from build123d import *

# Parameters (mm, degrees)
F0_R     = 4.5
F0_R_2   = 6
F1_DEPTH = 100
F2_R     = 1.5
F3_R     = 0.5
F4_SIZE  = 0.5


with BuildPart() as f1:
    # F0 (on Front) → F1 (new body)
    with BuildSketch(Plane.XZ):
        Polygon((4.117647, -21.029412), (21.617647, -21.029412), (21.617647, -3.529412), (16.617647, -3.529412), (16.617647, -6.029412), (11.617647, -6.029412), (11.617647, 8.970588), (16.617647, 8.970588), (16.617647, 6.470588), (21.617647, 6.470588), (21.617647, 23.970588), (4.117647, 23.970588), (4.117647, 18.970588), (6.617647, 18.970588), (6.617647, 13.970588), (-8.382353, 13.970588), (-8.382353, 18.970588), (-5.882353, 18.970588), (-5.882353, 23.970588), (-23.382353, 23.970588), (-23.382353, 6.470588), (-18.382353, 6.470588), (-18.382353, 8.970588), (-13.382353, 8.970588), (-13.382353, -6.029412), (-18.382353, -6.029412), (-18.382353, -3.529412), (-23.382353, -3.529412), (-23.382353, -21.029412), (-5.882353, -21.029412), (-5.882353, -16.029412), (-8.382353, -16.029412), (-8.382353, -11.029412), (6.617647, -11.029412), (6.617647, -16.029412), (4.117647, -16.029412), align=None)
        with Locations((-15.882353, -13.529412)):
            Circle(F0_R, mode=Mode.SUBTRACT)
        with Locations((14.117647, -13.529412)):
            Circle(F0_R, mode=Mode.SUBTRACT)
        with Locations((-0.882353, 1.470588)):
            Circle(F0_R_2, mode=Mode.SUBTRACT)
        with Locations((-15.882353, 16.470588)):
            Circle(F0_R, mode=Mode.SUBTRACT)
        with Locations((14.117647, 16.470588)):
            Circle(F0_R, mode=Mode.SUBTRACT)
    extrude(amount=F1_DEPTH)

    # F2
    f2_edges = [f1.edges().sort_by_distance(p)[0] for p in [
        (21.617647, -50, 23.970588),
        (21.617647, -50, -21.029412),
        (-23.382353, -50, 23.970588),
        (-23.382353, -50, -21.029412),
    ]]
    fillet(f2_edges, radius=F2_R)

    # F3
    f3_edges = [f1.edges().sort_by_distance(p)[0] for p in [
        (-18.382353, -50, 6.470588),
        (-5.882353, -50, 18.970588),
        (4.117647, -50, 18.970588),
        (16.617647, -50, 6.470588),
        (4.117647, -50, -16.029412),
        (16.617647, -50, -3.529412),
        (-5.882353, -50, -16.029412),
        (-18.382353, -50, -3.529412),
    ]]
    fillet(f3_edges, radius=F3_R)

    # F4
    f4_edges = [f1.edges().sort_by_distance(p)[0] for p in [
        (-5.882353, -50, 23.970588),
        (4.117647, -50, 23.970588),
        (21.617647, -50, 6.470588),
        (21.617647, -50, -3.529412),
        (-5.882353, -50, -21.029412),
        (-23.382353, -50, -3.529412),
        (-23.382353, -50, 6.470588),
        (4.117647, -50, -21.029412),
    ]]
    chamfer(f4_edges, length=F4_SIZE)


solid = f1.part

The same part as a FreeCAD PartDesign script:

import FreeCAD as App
import Part
import Sketcher
from FreeCAD import Vector


def edges_at(feature, points):
    """Names of the edges that pass closest to the given points."""
    edges = feature.Shape.Edges
    near = lambda p: min(range(len(edges)), key=lambda i: edges[i].distToShape(Part.Vertex(*p))[0])
    return sorted({f"Edge{near(p) + 1}" for p in points})

doc = App.newDocument("Part")
body = doc.addObject("PartDesign::Body", "Body")

# Sketch on XZ plane
sketch1 = body.newObject("Sketcher::SketchObject", "Sketch")
sketch1.AttachmentSupport = (doc.getObject("XZ_Plane"), [""])
sketch1.MapMode = "FlatFace"
sketch1.addGeometry(Part.LineSegment(Vector(4.1, -21, 0), Vector(21.6, -21, 0)), False)
sketch1.addGeometry(Part.LineSegment(Vector(21.6, -21, 0), Vector(21.6, -3.5, 0)), False)
sketch1.addGeometry(Part.LineSegment(Vector(21.6, -3.5, 0), Vector(16.6, -3.5, 0)), False)
sketch1.addGeometry(Part.LineSegment(Vector(16.6, -3.5, 0), Vector(16.6, -6, 0)), False)
sketch1.addGeometry(Part.LineSegment(Vector(16.6, -6, 0), Vector(11.6, -6, 0)), False)
sketch1.addGeometry(Part.LineSegment(Vector(11.6, -6, 0), Vector(11.6, 9, 0)), False)
sketch1.addGeometry(Part.LineSegment(Vector(11.6, 9, 0), Vector(16.6, 9, 0)), False)
sketch1.addGeometry(Part.LineSegment(Vector(16.6, 9, 0), Vector(16.6, 6.5, 0)), False)
sketch1.addGeometry(Part.LineSegment(Vector(16.6, 6.5, 0), Vector(21.6, 6.5, 0)), False)
sketch1.addGeometry(Part.LineSegment(Vector(21.6, 6.5, 0), Vector(21.6, 24, 0)), False)
sketch1.addGeometry(Part.LineSegment(Vector(21.6, 24, 0), Vector(4.1, 24, 0)), False)
sketch1.addGeometry(Part.LineSegment(Vector(4.1, 24, 0), Vector(4.1, 19, 0)), False)
sketch1.addGeometry(Part.LineSegment(Vector(4.1, 19, 0), Vector(6.6, 19, 0)), False)
sketch1.addGeometry(Part.LineSegment(Vector(6.6, 19, 0), Vector(6.6, 14, 0)), False)
sketch1.addGeometry(Part.LineSegment(Vector(6.6, 14, 0), Vector(-8.4, 14, 0)), False)
sketch1.addGeometry(Part.LineSegment(Vector(-8.4, 14, 0), Vector(-8.4, 19, 0)), False)
sketch1.addGeometry(Part.LineSegment(Vector(-8.4, 19, 0), Vector(-5.9, 19, 0)), False)
sketch1.addGeometry(Part.LineSegment(Vector(-5.9, 19, 0), Vector(-5.9, 24, 0)), False)
sketch1.addGeometry(Part.LineSegment(Vector(-5.9, 24, 0), Vector(-23.4, 24, 0)), False)
sketch1.addGeometry(Part.LineSegment(Vector(-23.4, 24, 0), Vector(-23.4, 6.5, 0)), False)
sketch1.addGeometry(Part.LineSegment(Vector(-23.4, 6.5, 0), Vector(-18.4, 6.5, 0)), False)
sketch1.addGeometry(Part.LineSegment(Vector(-18.4, 6.5, 0), Vector(-18.4, 9, 0)), False)
sketch1.addGeometry(Part.LineSegment(Vector(-18.4, 9, 0), Vector(-13.4, 9, 0)), False)
sketch1.addGeometry(Part.LineSegment(Vector(-13.4, 9, 0), Vector(-13.4, -6, 0)), False)
sketch1.addGeometry(Part.LineSegment(Vector(-13.4, -6, 0), Vector(-18.4, -6, 0)), False)
sketch1.addGeometry(Part.LineSegment(Vector(-18.4, -6, 0), Vector(-18.4, -3.5, 0)), False)
sketch1.addGeometry(Part.LineSegment(Vector(-18.4, -3.5, 0), Vector(-23.4, -3.5, 0)), False)
sketch1.addGeometry(Part.LineSegment(Vector(-23.4, -3.5, 0), Vector(-23.4, -21, 0)), False)
sketch1.addGeometry(Part.LineSegment(Vector(-23.4, -21, 0), Vector(-5.9, -21, 0)), False)
sketch1.addGeometry(Part.LineSegment(Vector(-5.9, -21, 0), Vector(-5.9, -16, 0)), False)
sketch1.addGeometry(Part.LineSegment(Vector(-5.9, -16, 0), Vector(-8.4, -16, 0)), False)
sketch1.addGeometry(Part.LineSegment(Vector(-8.4, -16, 0), Vector(-8.4, -11, 0)), False)
sketch1.addGeometry(Part.LineSegment(Vector(-8.4, -11, 0), Vector(6.6, -11, 0)), False)
sketch1.addGeometry(Part.LineSegment(Vector(6.6, -11, 0), Vector(6.6, -16, 0)), False)
sketch1.addGeometry(Part.LineSegment(Vector(6.6, -16, 0), Vector(4.1, -16, 0)), False)
sketch1.addGeometry(Part.LineSegment(Vector(4.1, -16, 0), Vector(4.1, -21, 0)), False)
sketch1.addGeometry(Part.Circle(Vector(-15.9, -13.5, 0), Vector(0, 0, 1), 4.5), False)
sketch1.addGeometry(Part.Circle(Vector(14.1, -13.5, 0), Vector(0, 0, 1), 4.5), False)
sketch1.addGeometry(Part.Circle(Vector(-15.9, 16.5, 0), Vector(0, 0, 1), 4.5), False)
sketch1.addGeometry(Part.Circle(Vector(-0.9, 1.5, 0), Vector(0, 0, 1), 6), False)
sketch1.addGeometry(Part.Circle(Vector(14.1, 16.5, 0), Vector(0, 0, 1), 4.5), False)
sketch1.addConstraint(Sketcher.Constraint("Coincident", 0, 2, 1, 1))
sketch1.addConstraint(Sketcher.Constraint("Coincident", 1, 2, 2, 1))
sketch1.addConstraint(Sketcher.Constraint("Coincident", 2, 2, 3, 1))
sketch1.addConstraint(Sketcher.Constraint("Coincident", 3, 2, 4, 1))
sketch1.addConstraint(Sketcher.Constraint("Coincident", 4, 2, 5, 1))
sketch1.addConstraint(Sketcher.Constraint("Coincident", 5, 2, 6, 1))
sketch1.addConstraint(Sketcher.Constraint("Coincident", 6, 2, 7, 1))
sketch1.addConstraint(Sketcher.Constraint("Coincident", 7, 2, 8, 1))
sketch1.addConstraint(Sketcher.Constraint("Coincident", 8, 2, 9, 1))
sketch1.addConstraint(Sketcher.Constraint("Coincident", 9, 2, 10, 1))
sketch1.addConstraint(Sketcher.Constraint("Coincident", 10, 2, 11, 1))
sketch1.addConstraint(Sketcher.Constraint("Coincident", 11, 2, 12, 1))
sketch1.addConstraint(Sketcher.Constraint("Coincident", 12, 2, 13, 1))
sketch1.addConstraint(Sketcher.Constraint("Coincident", 13, 2, 14, 1))
sketch1.addConstraint(Sketcher.Constraint("Coincident", 14, 2, 15, 1))
sketch1.addConstraint(Sketcher.Constraint("Coincident", 15, 2, 16, 1))
sketch1.addConstraint(Sketcher.Constraint("Coincident", 16, 2, 17, 1))
sketch1.addConstraint(Sketcher.Constraint("Coincident", 17, 2, 18, 1))
sketch1.addConstraint(Sketcher.Constraint("Coincident", 18, 2, 19, 1))
sketch1.addConstraint(Sketcher.Constraint("Coincident", 19, 2, 20, 1))
sketch1.addConstraint(Sketcher.Constraint("Coincident", 20, 2, 21, 1))
sketch1.addConstraint(Sketcher.Constraint("Coincident", 21, 2, 22, 1))
sketch1.addConstraint(Sketcher.Constraint("Coincident", 22, 2, 23, 1))
sketch1.addConstraint(Sketcher.Constraint("Coincident", 23, 2, 24, 1))
sketch1.addConstraint(Sketcher.Constraint("Coincident", 24, 2, 25, 1))
sketch1.addConstraint(Sketcher.Constraint("Coincident", 25, 2, 26, 1))
sketch1.addConstraint(Sketcher.Constraint("Coincident", 26, 2, 27, 1))
sketch1.addConstraint(Sketcher.Constraint("Coincident", 27, 2, 28, 1))
sketch1.addConstraint(Sketcher.Constraint("Coincident", 28, 2, 29, 1))
sketch1.addConstraint(Sketcher.Constraint("Coincident", 29, 2, 30, 1))
sketch1.addConstraint(Sketcher.Constraint("Coincident", 30, 2, 31, 1))
sketch1.addConstraint(Sketcher.Constraint("Coincident", 31, 2, 32, 1))
sketch1.addConstraint(Sketcher.Constraint("Coincident", 32, 2, 33, 1))
sketch1.addConstraint(Sketcher.Constraint("Coincident", 33, 2, 34, 1))
sketch1.addConstraint(Sketcher.Constraint("Coincident", 34, 2, 35, 1))
sketch1.addConstraint(Sketcher.Constraint("Coincident", 35, 2, 0, 1))
sketch1.addConstraint(Sketcher.Constraint("Horizontal", 0))
sketch1.addConstraint(Sketcher.Constraint("Vertical", 1))
sketch1.addConstraint(Sketcher.Constraint("Horizontal", 2))
sketch1.addConstraint(Sketcher.Constraint("Vertical", 3))
sketch1.addConstraint(Sketcher.Constraint("Horizontal", 4))
sketch1.addConstraint(Sketcher.Constraint("Vertical", 5))
sketch1.addConstraint(Sketcher.Constraint("Horizontal", 6))
sketch1.addConstraint(Sketcher.Constraint("Vertical", 7))
sketch1.addConstraint(Sketcher.Constraint("Horizontal", 8))
sketch1.addConstraint(Sketcher.Constraint("Vertical", 9))
sketch1.addConstraint(Sketcher.Constraint("Horizontal", 10))
sketch1.addConstraint(Sketcher.Constraint("Vertical", 11))
sketch1.addConstraint(Sketcher.Constraint("Horizontal", 12))
sketch1.addConstraint(Sketcher.Constraint("Vertical", 13))
sketch1.addConstraint(Sketcher.Constraint("Horizontal", 14))
sketch1.addConstraint(Sketcher.Constraint("Vertical", 15))
sketch1.addConstraint(Sketcher.Constraint("Horizontal", 16))
sketch1.addConstraint(Sketcher.Constraint("Vertical", 17))
sketch1.addConstraint(Sketcher.Constraint("Horizontal", 18))
sketch1.addConstraint(Sketcher.Constraint("Vertical", 19))
sketch1.addConstraint(Sketcher.Constraint("Horizontal", 20))
sketch1.addConstraint(Sketcher.Constraint("Vertical", 21))
sketch1.addConstraint(Sketcher.Constraint("Horizontal", 22))
sketch1.addConstraint(Sketcher.Constraint("Vertical", 23))
sketch1.addConstraint(Sketcher.Constraint("Horizontal", 24))
sketch1.addConstraint(Sketcher.Constraint("Vertical", 25))
sketch1.addConstraint(Sketcher.Constraint("Horizontal", 26))
sketch1.addConstraint(Sketcher.Constraint("Vertical", 27))
sketch1.addConstraint(Sketcher.Constraint("Horizontal", 28))
sketch1.addConstraint(Sketcher.Constraint("Vertical", 29))
sketch1.addConstraint(Sketcher.Constraint("Horizontal", 30))
sketch1.addConstraint(Sketcher.Constraint("Vertical", 31))
sketch1.addConstraint(Sketcher.Constraint("Horizontal", 32))
sketch1.addConstraint(Sketcher.Constraint("Vertical", 33))
sketch1.addConstraint(Sketcher.Constraint("Horizontal", 34))
sketch1.addConstraint(Sketcher.Constraint("Vertical", 35))
sketch1.addConstraint(Sketcher.Constraint("Equal", 36, 37))
sketch1.addConstraint(Sketcher.Constraint("Equal", 37, 38))
sketch1.addConstraint(Sketcher.Constraint("Equal", 38, 40))
sketch1.addConstraint(Sketcher.Constraint("Horizontal", 36, 3, 37, 3))
sketch1.addConstraint(Sketcher.Constraint("Horizontal", 38, 3, 40, 3))
sketch1.addConstraint(Sketcher.Constraint("Horizontal", 12, 2, 15, 2))
sketch1.addConstraint(Sketcher.Constraint("Horizontal", 10, 2, 17, 2))
sketch1.addConstraint(Sketcher.Constraint("Horizontal", 8, 2, 19, 2))
sketch1.addConstraint(Sketcher.Constraint("Horizontal", 6, 2, 21, 2))
sketch1.addConstraint(Sketcher.Constraint("Horizontal", 4, 2, 23, 2))
sketch1.addConstraint(Sketcher.Constraint("Horizontal", 2, 2, 25, 2))
sketch1.addConstraint(Sketcher.Constraint("Horizontal", 0, 2, 27, 2))
sketch1.addConstraint(Sketcher.Constraint("Horizontal", 30, 2, 33, 2))
sketch1.addConstraint(Sketcher.Constraint("Vertical", 36, 3, 38, 3))
sketch1.addConstraint(Sketcher.Constraint("Vertical", 37, 3, 40, 3))
sketch1.addConstraint(Sketcher.Constraint("Vertical", 3, 2, 6, 2))
sketch1.addConstraint(Sketcher.Constraint("Vertical", 1, 2, 8, 2))
sketch1.addConstraint(Sketcher.Constraint("Vertical", 21, 2, 24, 2))
sketch1.addConstraint(Sketcher.Constraint("Vertical", 19, 2, 26, 2))
sketch1.addConstraint(Sketcher.Constraint("Vertical", 17, 2, 28, 2))
sketch1.addConstraint(Sketcher.Constraint("Vertical", 15, 2, 30, 2))
sketch1.addConstraint(Sketcher.Constraint("Vertical", 13, 2, 32, 2))
sketch1.addConstraint(Sketcher.Constraint("Vertical", 11, 2, 34, 2))
sketch1.addConstraint(Sketcher.Constraint("Equal", 2, 4))
sketch1.addConstraint(Sketcher.Constraint("Equal", 12, 16))
sketch1.addConstraint(Sketcher.Constraint("Equal", 10, 18))
sketch1.addConstraint(Sketcher.Constraint("Equal", 8, 20))
sketch1.addConstraint(Sketcher.Constraint("Equal", 20, 22))
sketch1.addConstraint(Sketcher.Constraint("Equal", 28, 1))
sketch1.addConstraint(Sketcher.Constraint("Equal", 34, 3))
sketch1.addConstraint(Sketcher.Constraint("Equal", 32, 5))
sketch1.addConstraint(Sketcher.Constraint("Equal", 3, 7))
sketch1.addConstraint(Sketcher.Constraint("Equal", 1, 9))
sketch1.addConstraint(Sketcher.Constraint("Equal", 26, 11))
sketch1.addConstraint(Sketcher.Constraint("Equal", 11, 13))
sketch1.addConstraint(Sketcher.Constraint("Equal", 17, 29))
sketch1.addConstraint(Sketcher.Constraint("Equal", 29, 31))
sketch1.addConstraint(Sketcher.Constraint("Diameter", 36, 9.0))
sketch1.addConstraint(Sketcher.Constraint("Diameter", 39, 12.0))
sketch1.addConstraint(Sketcher.Constraint("DistanceX", 2, 2, 2, 1, 5.0))
sketch1.addConstraint(Sketcher.Constraint("DistanceX", 14, 2, 14, 1, 15.0))
sketch1.addConstraint(Sketcher.Constraint("DistanceX", 0, 1, 0, 2, 17.5))
sketch1.addConstraint(Sketcher.Constraint("DistanceX", 12, 1, 12, 2, 2.5))
sketch1.addConstraint(Sketcher.Constraint("DistanceX", 36, 3, 37, 3, 30.0))
sketch1.addConstraint(Sketcher.Constraint("DistanceY", 36, 3, 38, 3, 30.0))
sketch1.addConstraint(Sketcher.Constraint("DistanceX", 36, 3, 39, 3, 15.0))
sketch1.addConstraint(Sketcher.Constraint("DistanceY", 36, 3, 39, 3, 15.0))
sketch1.addConstraint(Sketcher.Constraint("DistanceY", 37, 3, 1, 2, 10.0))
sketch1.addConstraint(Sketcher.Constraint("DistanceX", 10, 2, 40, 3, 10.0))
sketch1.addConstraint(Sketcher.Constraint("DistanceY", 3, 2, -1, 1, 6.029412))
sketch1.addConstraint(Sketcher.Constraint("DistanceX", 36, 3, -1, 1, 15.882353))
pad1 = body.newObject("PartDesign::Pad", "Pad")
pad1.Profile = sketch1
pad1.Length = 100
doc.recompute()

fillet = body.newObject("PartDesign::Fillet", "Fillet")
fillet.Base = (pad1, edges_at(pad1, [
    (21.618, -50, 23.971),
    (21.618, -50, -21.029),
    (-23.382, -50, 23.971),
    (-23.382, -50, -21.029),
]))
fillet.Radius = 1.5
doc.recompute()

fillet2 = body.newObject("PartDesign::Fillet", "Fillet001")
fillet2.Base = (fillet, edges_at(fillet, [
    (-18.382, -50, 6.471),
    (-5.882, -50, 18.971),
    (4.118, -50, 18.971),
    (16.618, -50, 6.471),
    (4.118, -50, -16.029),
    (16.618, -50, -3.529),
    (-5.882, -50, -16.029),
    (-18.382, -50, -3.529),
]))
fillet2.Radius = 0.5
doc.recompute()

chamfer = body.newObject("PartDesign::Chamfer", "Chamfer")
chamfer.Base = (fillet2, edges_at(fillet2, [
    (-5.882, -50, 23.971),
    (4.118, -50, 23.971),
    (21.618, -50, 6.471),
    (21.618, -50, -3.529),
    (-5.882, -50, -21.029),
    (-23.382, -50, -3.529),
    (-23.382, -50, 6.471),
    (4.118, -50, -21.029),
]))
chamfer.Size = 0.5

doc.recompute()
